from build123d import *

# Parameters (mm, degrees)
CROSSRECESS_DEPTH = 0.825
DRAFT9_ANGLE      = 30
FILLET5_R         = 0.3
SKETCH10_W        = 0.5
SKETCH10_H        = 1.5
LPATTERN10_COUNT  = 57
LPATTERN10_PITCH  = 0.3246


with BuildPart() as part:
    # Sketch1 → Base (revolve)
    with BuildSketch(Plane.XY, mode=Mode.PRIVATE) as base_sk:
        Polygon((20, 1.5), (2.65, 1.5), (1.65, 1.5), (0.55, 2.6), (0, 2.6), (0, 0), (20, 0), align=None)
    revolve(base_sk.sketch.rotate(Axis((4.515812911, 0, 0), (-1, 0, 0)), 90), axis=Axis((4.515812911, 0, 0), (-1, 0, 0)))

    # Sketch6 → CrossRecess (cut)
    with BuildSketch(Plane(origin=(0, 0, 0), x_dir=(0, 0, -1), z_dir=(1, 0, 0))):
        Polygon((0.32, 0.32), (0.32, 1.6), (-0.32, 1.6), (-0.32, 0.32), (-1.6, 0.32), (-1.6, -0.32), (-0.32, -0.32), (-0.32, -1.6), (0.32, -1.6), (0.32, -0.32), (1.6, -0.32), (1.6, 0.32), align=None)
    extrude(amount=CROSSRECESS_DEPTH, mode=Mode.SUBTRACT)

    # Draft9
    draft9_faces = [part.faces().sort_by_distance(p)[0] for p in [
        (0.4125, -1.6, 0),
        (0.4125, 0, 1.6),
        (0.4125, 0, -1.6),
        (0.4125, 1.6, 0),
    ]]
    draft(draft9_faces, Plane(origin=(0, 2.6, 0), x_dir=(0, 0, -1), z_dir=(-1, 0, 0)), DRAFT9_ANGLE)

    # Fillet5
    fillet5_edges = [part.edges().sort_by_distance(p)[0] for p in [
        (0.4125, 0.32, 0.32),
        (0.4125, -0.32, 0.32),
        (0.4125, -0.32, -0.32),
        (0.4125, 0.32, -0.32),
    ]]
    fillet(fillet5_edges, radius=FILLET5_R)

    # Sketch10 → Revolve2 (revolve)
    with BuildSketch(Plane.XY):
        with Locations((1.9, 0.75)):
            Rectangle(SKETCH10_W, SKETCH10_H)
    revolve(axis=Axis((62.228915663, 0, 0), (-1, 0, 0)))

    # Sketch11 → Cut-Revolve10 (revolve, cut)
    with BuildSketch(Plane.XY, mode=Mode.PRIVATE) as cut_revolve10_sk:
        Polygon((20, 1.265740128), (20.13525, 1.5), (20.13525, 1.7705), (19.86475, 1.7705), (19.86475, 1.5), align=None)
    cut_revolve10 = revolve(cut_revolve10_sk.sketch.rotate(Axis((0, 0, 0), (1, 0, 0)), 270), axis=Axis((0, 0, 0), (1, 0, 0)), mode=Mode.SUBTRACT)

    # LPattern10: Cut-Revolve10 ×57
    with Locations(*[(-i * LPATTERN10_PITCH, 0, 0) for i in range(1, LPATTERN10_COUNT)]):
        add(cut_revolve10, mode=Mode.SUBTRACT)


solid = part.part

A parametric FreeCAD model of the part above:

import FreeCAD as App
import Part
import Sketcher
Q = App.Units.Quantity


def edges_at(feature, points):
    """Names of the edges that pass closest to the given points."""
    edges = feature.Shape.Edges
    near = lambda p: min(range(len(edges)), key=lambda i: edges[i].distToShape(Part.Vertex(*p))[0])
    return sorted({f"Edge{near(p) + 1}" for p in points})


def faces_at(feature, points):
    """Names of the faces that lie closest to the given points."""
    faces = feature.Shape.Faces
    near = lambda p: min(range(len(faces)), key=lambda i: faces[i].distToShape(Part.Vertex(*p))[0])
    return sorted({f"Face{near(p) + 1}" for p in points})


def add_polygon(sketch, points):
    """Adds a closed chain of lines whose ends are joined by coincident constraints."""
    first, n = sketch.GeometryCount, len(points)
    for a, b in zip(points, points[1:] + points[:1]):
        sketch.addGeometry(Part.LineSegment(App.Vector(*a, 0), App.Vector(*b, 0)), False)
    for i in range(n):
        sketch.addConstraint(Sketcher.Constraint("Coincident", first + i, 2, first + (i + 1) % n, 1))

doc = App.newDocument("Part")
params = doc.addObject("Spreadsheet::Sheet", "Params")
for row, (alias, value) in enumerate([
    ("sketch1_width", "20 mm"),
    ("sketch1_height", "2.6 mm"),
    ("sketch1_height2", "1.5 mm"),
    ("sketch1_width2", "18.35 mm"),
    ("revolution_angle", "360 deg"),
    ("sketch2_width", "1.28 mm"),
    ("sketch2_width2", "0.64 mm"),
    ("pocket1_length", "0.825 mm"),
    ("draft_angle", "30 deg"),
    ("fillet_radius", "0.3 mm"),
    ("sketch3_width", "0.5 mm"),
    ("sketch3_height", "1.5 mm"),
    ("revolution2_angle", "360 deg"),
    ("groove_angle", "360 deg"),
    ("linearpattern_pitch", "0.3246 mm"),
], start=1):
    params.set(f"A{row}", alias)
    params.set(f"B{row}", "=" + value)
    params.setAlias(f"B{row}", alias)

body = doc.addObject("PartDesign::Body", "Body")

# Sketch on XY plane
sketch1 = body.newObject("Sketcher::SketchObject", "Sketch")
sketch1.AttachmentSupport = (doc.getObject("XY_Plane"), [""])
sketch1.MapMode = "FlatFace"
add_polygon(sketch1, [(20, 1.5), (1.6, 1.5), (0.6, 2.6), (0, 2.6), (0, 0), (20, 0)])  # lines 0-5
sketch1.addConstraint([
    Sketcher.Constraint("Horizontal", 0),
    Sketcher.Constraint("Horizontal", 2),
    Sketcher.Constraint("Vertical", 3),
    Sketcher.Constraint("Horizontal", 4),
    Sketcher.Constraint("Vertical", 5),
    Sketcher.Constraint("Coincident", 3, 2, -1, 1),
    Sketcher.Constraint("DistanceX", 4, 1, 4, 2, Q("20 mm")),
    Sketcher.Constraint("Angle", 1, Q("135 deg")),
    Sketcher.Constraint("DistanceY", 3, 2, 3, 1, Q("2.6 mm")),
    Sketcher.Constraint("DistanceY", 5, 1, 5, 2, Q("1.5 mm")),
    Sketcher.Constraint("DistanceX", 0, 2, 0, 1, Q("18.35 mm")),
])
sketch1.setExpression("Constraints[12]", "Params.sketch1_width")
sketch1.setExpression("Constraints[14]", "Params.sketch1_height")
sketch1.setExpression("Constraints[15]", "Params.sketch1_height2")
sketch1.setExpression("Constraints[16]", "Params.sketch1_width2")
revolution = body.newObject("PartDesign::Revolution", "Revolution")
revolution.Profile = sketch1
revolution.ReferenceAxis = (sketch1, ["H_Axis"])
revolution.setExpression("Angle", "Params.revolution_angle")

# Sketch on YZ plane
sketch2 = body.newObject("Sketcher::SketchObject", "Sketch001")
sketch2.AttachmentSupport = (doc.getObject("YZ_Plane"), [""])
sketch2.MapMode = "FlatFace"
add_polygon(sketch2, [(0.3, -0.3), (1.6, -0.3), (1.6, 0.3), (0.3, 0.3), (0.3, 1.6), (-0.3, 1.6), (-0.3, 0.3), (-1.6, 0.3), (-1.6, -0.3), (-0.3, -0.3), (-0.3, -1.6), (0.3, -1.6)])  # lines 0-11
sketch2.addConstraint([
    Sketcher.Constraint("Horizontal", 0),
    Sketcher.Constraint("Vertical", 1),
    Sketcher.Constraint("Horizontal", 2),
    Sketcher.Constraint("Vertical", 3),
    Sketcher.Constraint("Horizontal", 4),
    Sketcher.Constraint("Vertical", 5),
    Sketcher.Constraint("Horizontal", 6),
    Sketcher.Constraint("Vertical", 7),
    Sketcher.Constraint("Horizontal", 8),
    Sketcher.Constraint("Vertical", 9),
    Sketcher.Constraint("Horizontal", 10),
    Sketcher.Constraint("Vertical", 11),
    Sketcher.Constraint("Symmetric", 0, 2, 6, 2, -1, 1),
    Sketcher.Constraint("Symmetric", 2, 2, 8, 2, -1, 1),
    Sketcher.Constraint("Symmetric", 4, 2, 10, 2, -1, 1),
    Sketcher.Constraint("Symmetric", 2, 2, 5, 2, -2),
    Sketcher.Constraint("Equal", 10, 1),
    Sketcher.Constraint("Equal", 8, 3),
    Sketcher.Constraint("DistanceX", 0, 1, 0, 2, Q("1.28 mm")),
    Sketcher.Constraint("DistanceX", 4, 2, 4, 1, Q("0.64 mm")),
])
sketch2.setExpression("Constraints[30]", "Params.sketch2_width")
sketch2.setExpression("Constraints[31]", "Params.sketch2_width2")
pocket1 = body.newObject("PartDesign::Pocket", "Pocket")
pocket1.Profile = sketch2
pocket1.setExpression("Length", "Params.pocket1_length")
pocket1.Reversed = True
doc.recompute()

draft = body.newObject("PartDesign::Draft", "Draft")
draft.Base = (pocket1, faces_at(pocket1, [
    (0.412, -1.6, 0),
    (0.412, 0, 1.6),
    (0.412, 0, -1.6),
    (0.412, 1.6, 0),
]))
draft.NeutralPlane = (doc.getObject("YZ_Plane"), [""])
draft.setExpression("Angle", "Params.draft_angle")
draft.Reversed = True
doc.recompute()

fillet = body.newObject("PartDesign::Fillet", "Fillet")
fillet.Base = (draft, edges_at(draft, [
    (0.412, 0.32, 0.32),
    (0.412, -0.32, 0.32),
    (0.412, -0.32, -0.32),
    (0.412, 0.32, -0.32),
]))
fillet.setExpression("Radius", "Params.fillet_radius")

# Sketch on XY plane
sketch3 = body.newObject("Sketcher::SketchObject", "Sketch002")
sketch3.AttachmentSupport = (doc.getObject("XY_Plane"), [""])
sketch3.MapMode = "FlatFace"
add_polygon(sketch3, [(1.6, 1.5), (1.6, 0), (2.1, 0), (2.1, 1.5)])  # lines 0-3
sketch3.addConstraint([
    Sketcher.Constraint("Vertical", 0),
    Sketcher.Constraint("Horizontal", 1),
    Sketcher.Constraint("Vertical", 2),
    Sketcher.Constraint("Horizontal", 3),
    Sketcher.Constraint("PointOnObject", 0, 2, -1),
    Sketcher.Constraint("DistanceX", 1, 1, 1, 2, Q("0.5 mm")),
    Sketcher.Constraint("DistanceY", 0, 2, 0, 1, Q("1.5 mm")),
    Sketcher.Constraint("DistanceX", -1, 1, 0, 2, Q("1.65 mm")),
])
sketch3.setExpression("Constraints[9]", "Params.sketch3_width")
sketch3.setExpression("Constraints[10]", "Params.sketch3_height")
revolution2 = body.newObject("PartDesign::Revolution", "Revolution001")
revolution2.Profile = sketch3
revolution2.ReferenceAxis = (sketch3, ["H_Axis"])
revolution2.setExpression("Angle", "Params.revolution2_angle")

# Sketch on XY plane
sketch4 = body.newObject("Sketcher::SketchObject", "Sketch003")
sketch4.AttachmentSupport = (doc.getObject("XY_Plane"), [""])
sketch4.MapMode = "FlatFace"
add_polygon(sketch4, [(20, 1.27), (20.14, 1.5), (20.14, 1.77), (19.86, 1.77), (19.86, 1.5)])  # lines 0-4
sketch4.addConstraint([
    Sketcher.Constraint("Vertical", 1),
    Sketcher.Constraint("Horizontal", 2),
    Sketcher.Constraint("Vertical", 3),
    Sketcher.Constraint("Horizontal", 0, 2, 3, 2),
    Sketcher.Constraint("Equal", 2, 1),
    Sketcher.Constraint("Equal", 0, 4),
    Sketcher.Constraint("Angle", 0, Q("60 deg")),
    Sketcher.Constraint("DistanceX", -1, 1, 4, 2, Q("20 mm")),
    Sketcher.Constraint("DistanceY", -1, 1, 0, 2, Q("1.5 mm")),
    Sketcher.Constraint("DistanceX", 2, 2, 2, 1, Q("0.2705 mm")),
])
groove = body.newObject("PartDesign::Groove", "Groove")
groove.Profile = sketch4
groove.ReferenceAxis = (sketch4, ["H_Axis"])
groove.setExpression("Angle", "Params.groove_angle")
doc.recompute()

linearpattern = body.newObject("PartDesign::LinearPattern", "LinearPattern")
linearpattern.Originals = [groove]
linearpattern.Direction = (doc.getObject("X_Axis"), [""])
linearpattern.Mode = "offset"
linearpattern.setExpression("Offset", "Params.linearpattern_pitch")
linearpattern.Occurrences = 57
linearpattern.Reversed = True
body.Tip = linearpattern

doc.recompute()
